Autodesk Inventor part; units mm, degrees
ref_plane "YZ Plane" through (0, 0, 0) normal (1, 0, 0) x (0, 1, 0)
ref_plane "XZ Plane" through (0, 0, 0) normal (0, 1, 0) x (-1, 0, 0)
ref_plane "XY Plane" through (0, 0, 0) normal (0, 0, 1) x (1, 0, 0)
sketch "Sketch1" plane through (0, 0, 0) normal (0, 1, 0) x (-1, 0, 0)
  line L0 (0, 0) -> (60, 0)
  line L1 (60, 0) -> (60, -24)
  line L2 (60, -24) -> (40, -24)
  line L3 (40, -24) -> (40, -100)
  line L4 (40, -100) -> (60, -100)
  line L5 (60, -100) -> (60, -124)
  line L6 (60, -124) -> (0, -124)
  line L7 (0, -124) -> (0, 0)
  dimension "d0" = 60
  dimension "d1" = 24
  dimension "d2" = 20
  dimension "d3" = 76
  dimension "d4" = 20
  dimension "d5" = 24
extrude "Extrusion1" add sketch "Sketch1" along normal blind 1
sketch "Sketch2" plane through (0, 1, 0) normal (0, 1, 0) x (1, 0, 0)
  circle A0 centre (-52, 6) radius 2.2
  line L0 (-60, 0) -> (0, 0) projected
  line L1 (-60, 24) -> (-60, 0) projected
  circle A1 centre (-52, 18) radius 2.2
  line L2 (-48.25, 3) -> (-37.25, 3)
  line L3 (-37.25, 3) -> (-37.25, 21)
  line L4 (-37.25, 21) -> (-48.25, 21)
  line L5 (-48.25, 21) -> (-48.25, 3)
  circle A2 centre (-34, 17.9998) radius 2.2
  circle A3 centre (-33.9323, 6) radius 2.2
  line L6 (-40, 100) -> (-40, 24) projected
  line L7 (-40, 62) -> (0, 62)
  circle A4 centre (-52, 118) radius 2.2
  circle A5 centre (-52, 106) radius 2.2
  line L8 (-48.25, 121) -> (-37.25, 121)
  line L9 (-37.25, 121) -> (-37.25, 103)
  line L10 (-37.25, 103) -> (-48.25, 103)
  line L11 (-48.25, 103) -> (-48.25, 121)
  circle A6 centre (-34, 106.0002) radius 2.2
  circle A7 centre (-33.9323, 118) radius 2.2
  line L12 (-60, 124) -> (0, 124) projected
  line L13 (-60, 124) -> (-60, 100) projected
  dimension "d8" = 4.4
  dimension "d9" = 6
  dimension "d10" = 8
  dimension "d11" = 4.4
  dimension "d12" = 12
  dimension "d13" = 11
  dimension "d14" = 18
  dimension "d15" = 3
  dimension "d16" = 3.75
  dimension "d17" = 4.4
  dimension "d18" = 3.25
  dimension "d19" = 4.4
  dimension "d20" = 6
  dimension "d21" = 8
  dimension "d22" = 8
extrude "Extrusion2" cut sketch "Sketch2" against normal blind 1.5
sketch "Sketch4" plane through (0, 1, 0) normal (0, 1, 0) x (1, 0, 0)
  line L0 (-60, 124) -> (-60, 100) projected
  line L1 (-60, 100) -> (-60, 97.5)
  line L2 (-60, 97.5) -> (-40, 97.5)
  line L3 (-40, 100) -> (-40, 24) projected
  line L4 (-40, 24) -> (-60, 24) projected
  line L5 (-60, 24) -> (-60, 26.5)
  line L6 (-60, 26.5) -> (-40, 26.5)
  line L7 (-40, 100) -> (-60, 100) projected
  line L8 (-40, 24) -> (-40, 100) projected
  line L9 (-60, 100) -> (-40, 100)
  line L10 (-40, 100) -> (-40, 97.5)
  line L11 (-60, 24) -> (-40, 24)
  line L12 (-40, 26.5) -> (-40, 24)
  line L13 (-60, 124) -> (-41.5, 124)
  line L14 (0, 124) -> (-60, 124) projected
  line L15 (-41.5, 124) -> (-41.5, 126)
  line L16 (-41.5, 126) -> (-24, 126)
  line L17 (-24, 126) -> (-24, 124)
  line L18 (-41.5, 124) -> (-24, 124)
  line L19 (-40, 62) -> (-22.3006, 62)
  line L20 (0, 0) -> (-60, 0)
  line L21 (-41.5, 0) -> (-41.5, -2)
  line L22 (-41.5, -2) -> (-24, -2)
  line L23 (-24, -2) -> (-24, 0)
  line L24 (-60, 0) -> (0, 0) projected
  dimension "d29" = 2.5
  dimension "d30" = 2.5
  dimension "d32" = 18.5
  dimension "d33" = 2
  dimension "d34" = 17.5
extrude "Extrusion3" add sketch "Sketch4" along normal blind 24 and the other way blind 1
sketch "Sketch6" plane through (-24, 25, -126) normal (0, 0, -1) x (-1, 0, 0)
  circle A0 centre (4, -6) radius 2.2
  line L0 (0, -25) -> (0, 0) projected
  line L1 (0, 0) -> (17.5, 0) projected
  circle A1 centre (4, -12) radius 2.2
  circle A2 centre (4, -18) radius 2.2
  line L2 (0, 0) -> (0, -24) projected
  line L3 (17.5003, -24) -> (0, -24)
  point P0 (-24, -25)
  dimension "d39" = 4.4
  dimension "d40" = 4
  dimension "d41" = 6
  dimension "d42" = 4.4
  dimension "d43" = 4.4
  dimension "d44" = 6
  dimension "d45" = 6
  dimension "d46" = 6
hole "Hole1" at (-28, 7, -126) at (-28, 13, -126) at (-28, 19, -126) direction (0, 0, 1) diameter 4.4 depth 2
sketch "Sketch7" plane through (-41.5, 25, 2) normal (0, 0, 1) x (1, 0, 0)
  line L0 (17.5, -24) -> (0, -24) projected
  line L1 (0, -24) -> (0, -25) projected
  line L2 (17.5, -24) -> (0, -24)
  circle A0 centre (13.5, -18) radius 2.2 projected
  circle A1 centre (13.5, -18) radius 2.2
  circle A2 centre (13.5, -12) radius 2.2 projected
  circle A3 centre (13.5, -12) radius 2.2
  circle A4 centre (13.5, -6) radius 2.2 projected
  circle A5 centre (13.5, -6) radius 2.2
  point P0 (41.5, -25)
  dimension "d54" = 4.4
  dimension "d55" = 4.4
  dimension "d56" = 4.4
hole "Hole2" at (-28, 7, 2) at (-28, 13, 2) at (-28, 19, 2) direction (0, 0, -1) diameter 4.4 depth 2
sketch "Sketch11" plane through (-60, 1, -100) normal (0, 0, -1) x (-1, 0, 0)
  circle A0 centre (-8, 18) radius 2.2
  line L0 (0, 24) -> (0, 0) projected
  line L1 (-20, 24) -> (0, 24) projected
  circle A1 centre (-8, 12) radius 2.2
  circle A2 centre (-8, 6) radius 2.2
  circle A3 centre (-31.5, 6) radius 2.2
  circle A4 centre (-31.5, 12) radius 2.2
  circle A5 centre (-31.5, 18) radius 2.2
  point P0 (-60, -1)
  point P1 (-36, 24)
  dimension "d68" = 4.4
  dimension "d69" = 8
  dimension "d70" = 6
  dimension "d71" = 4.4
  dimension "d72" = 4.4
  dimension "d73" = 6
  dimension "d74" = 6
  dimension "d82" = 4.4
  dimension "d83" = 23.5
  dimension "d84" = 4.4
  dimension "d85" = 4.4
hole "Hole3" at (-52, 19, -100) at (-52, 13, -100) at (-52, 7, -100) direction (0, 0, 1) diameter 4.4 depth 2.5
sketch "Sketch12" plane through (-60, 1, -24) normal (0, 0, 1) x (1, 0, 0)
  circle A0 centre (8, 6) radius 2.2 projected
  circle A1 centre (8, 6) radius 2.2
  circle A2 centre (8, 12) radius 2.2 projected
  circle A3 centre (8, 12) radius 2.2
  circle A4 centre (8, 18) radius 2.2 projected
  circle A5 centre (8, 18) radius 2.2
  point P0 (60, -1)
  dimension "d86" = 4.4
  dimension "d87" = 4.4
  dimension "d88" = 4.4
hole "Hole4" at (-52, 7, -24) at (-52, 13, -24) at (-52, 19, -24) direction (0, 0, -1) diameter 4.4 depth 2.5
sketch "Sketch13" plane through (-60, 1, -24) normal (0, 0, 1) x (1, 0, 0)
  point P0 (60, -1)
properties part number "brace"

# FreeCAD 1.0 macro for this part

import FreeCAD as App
import Part
import Sketcher
from FreeCAD import Vector
Q = App.Units.Quantity

doc = App.newDocument("Part")
params = doc.addObject("Spreadsheet::Sheet", "Params")
for row, (alias, value) in enumerate([
    ("sketch1_width", "60 mm"),
    ("sketch1_width2", "20 mm"),
    ("sketch1_height", "24 mm"),
    ("sketch1_height2", "76 mm"),
    ("pad1_length", "1 mm"),
    ("sketch2_diameter", "4.4 mm"),
    ("sketch2_width", "11 mm"),
    ("sketch2_height", "18 mm"),
    ("pocket1_length", "1.5 mm"),
    ("sketch3_height", "2 mm"),
    ("sketch3_width", "17.5 mm"),
    ("sketch3_height2", "2.5 mm"),
    ("sketch3_width2", "20 mm"),
    ("pad2_length", "24 mm"),
    ("pad2_length2", "1 mm"),
    ("sketch4_diameter", "4.4 mm"),
    ("hole_diameter", "4.4 mm"),
    ("hole_depth", "2 mm"),
    ("sketch5_diameter", "4.4 mm"),
    ("hole2_diameter", "4.4 mm"),
    ("hole2_depth", "2 mm"),
    ("sketch6_diameter", "4.4 mm"),
    ("hole3_diameter", "4.4 mm"),
    ("hole3_depth", "2.5 mm"),
    ("sketch7_diameter", "4.4 mm"),
    ("hole4_diameter", "4.4 mm"),
    ("hole4_depth", "2.5 mm"),
], start=1):
    params.set(f"A{row}", alias)
    params.set(f"B{row}", "=" + value)
    params.setAlias(f"B{row}", alias)

body = doc.addObject("PartDesign::Body", "Body")

# Sketch on XZ plane
sketch1 = doc.addObject("Sketcher::SketchObject", "Sketch")
body.addObject(sketch1)
sketch1.AttachmentSupport = (doc.XZ_Plane, [""])
sketch1.MapMode = "FlatFace"
sketch1.addGeometry(Part.LineSegment(Vector(-60, 0, 0), Vector(0, 0, 0)), False)
sketch1.addGeometry(Part.LineSegment(Vector(0, 0, 0), Vector(0, -124, 0)), False)
sketch1.addGeometry(Part.LineSegment(Vector(0, -124, 0), Vector(-60, -124, 0)), False)
sketch1.addGeometry(Part.LineSegment(Vector(-60, -124, 0), Vector(-60, -100, 0)), False)
sketch1.addGeometry(Part.LineSegment(Vector(-60, -100, 0), Vector(-40, -100, 0)), False)
sketch1.addGeometry(Part.LineSegment(Vector(-40, -100, 0), Vector(-40, -24, 0)), False)
sketch1.addGeometry(Part.LineSegment(Vector(-40, -24, 0), Vector(-60, -24, 0)), False)
sketch1.addGeometry(Part.LineSegment(Vector(-60, -24, 0), Vector(-60, 0, 0)), False)
sketch1.addConstraint(Sketcher.Constraint("Coincident", 0, 2, 1, 1))
sketch1.addConstraint(Sketcher.Constraint("Coincident", 1, 2, 2, 1))
sketch1.addConstraint(Sketcher.Constraint("Coincident", 2, 2, 3, 1))
sketch1.addConstraint(Sketcher.Constraint("Coincident", 3, 2, 4, 1))
sketch1.addConstraint(Sketcher.Constraint("Coincident", 4, 2, 5, 1))
sketch1.addConstraint(Sketcher.Constraint("Coincident", 5, 2, 6, 1))
sketch1.addConstraint(Sketcher.Constraint("Coincident", 6, 2, 7, 1))
sketch1.addConstraint(Sketcher.Constraint("Coincident", 7, 2, 0, 1))
sketch1.addConstraint(Sketcher.Constraint("Horizontal", 0))
sketch1.addConstraint(Sketcher.Constraint("Vertical", 1))
sketch1.addConstraint(Sketcher.Constraint("Horizontal", 2))
sketch1.addConstraint(Sketcher.Constraint("Vertical", 3))
sketch1.addConstraint(Sketcher.Constraint("Horizontal", 4))
sketch1.addConstraint(Sketcher.Constraint("Vertical", 5))
sketch1.addConstraint(Sketcher.Constraint("Horizontal", 6))
sketch1.addConstraint(Sketcher.Constraint("Vertical", 7))
sketch1.addConstraint(Sketcher.Constraint("Coincident", 0, 2, -1, 1))
sketch1.addConstraint(Sketcher.Constraint("Vertical", 3, 2, 6, 2))
sketch1.addConstraint(Sketcher.Constraint("Equal", 3, 7))
sketch1.addConstraint(Sketcher.Constraint("DistanceX", 0, 1, 0, 2, Q("60 mm")))
sketch1.addConstraint(Sketcher.Constraint("DistanceX", 4, 1, 4, 2, Q("20 mm")))
sketch1.addConstraint(Sketcher.Constraint("DistanceY", 3, 1, 3, 2, Q("24 mm")))
sketch1.addConstraint(Sketcher.Constraint("DistanceY", 5, 1, 5, 2, Q("76 mm")))
sketch1.setExpression("Constraints[19]", "Params.sketch1_width")
sketch1.setExpression("Constraints[20]", "Params.sketch1_width2")
sketch1.setExpression("Constraints[21]", "Params.sketch1_height")
sketch1.setExpression("Constraints[22]", "Params.sketch1_height2")
pad1 = doc.addObject("PartDesign::Pad", "Pad")
body.addObject(pad1)
pad1.Profile = sketch1
pad1.setExpression("Length", "Params.pad1_length")
pad1.Reversed = True

# Sketch on XZ plane
sketch2 = doc.addObject("Sketcher::SketchObject", "Sketch001")
body.addObject(sketch2)
sketch2.AttachmentSupport = (doc.XZ_Plane, [""])
sketch2.MapMode = "FlatFace"
sketch2.AttachmentOffset = App.Placement(Vector(0, 0, -1), App.Rotation())
sketch2.addGeometry(Part.Circle(Vector(-52, -6, 0), Vector(0, 0, 1), 2.2), False)
sketch2.addGeometry(Part.Circle(Vector(-52, -18, 0), Vector(0, 0, 1), 2.2), False)
sketch2.addGeometry(Part.LineSegment(Vector(-48.25, -21, 0), Vector(-48.25, -3, 0)), False)
sketch2.addGeometry(Part.LineSegment(Vector(-48.25, -3, 0), Vector(-37.25, -3, 0)), False)
sketch2.addGeometry(Part.LineSegment(Vector(-37.25, -3, 0), Vector(-37.25, -21, 0)), False)
sketch2.addGeometry(Part.LineSegment(Vector(-37.25, -21, 0), Vector(-48.25, -21, 0)), False)
sketch2.addGeometry(Part.Circle(Vector(-34, -17.9998, 0), Vector(0, 0, 1), 2.2), False)
sketch2.addGeometry(Part.Circle(Vector(-33.9323, -6, 0), Vector(0, 0, 1), 2.2), False)
sketch2.addGeometry(Part.Circle(Vector(-52, -118, 0), Vector(0, 0, 1), 2.2), False)
sketch2.addGeometry(Part.Circle(Vector(-52, -106, 0), Vector(0, 0, 1), 2.2), False)
sketch2.addGeometry(Part.LineSegment(Vector(-37.25, -121, 0), Vector(-48.25, -121, 0)), False)
sketch2.addGeometry(Part.LineSegment(Vector(-48.25, -121, 0), Vector(-48.25, -103, 0)), False)
sketch2.addGeometry(Part.LineSegment(Vector(-48.25, -103, 0), Vector(-37.25, -103, 0)), False)
sketch2.addGeometry(Part.LineSegment(Vector(-37.25, -103, 0), Vector(-37.25, -121, 0)), False)
sketch2.addGeometry(Part.Circle(Vector(-34, -106.0002, 0), Vector(0, 0, 1), 2.2), False)
sketch2.addGeometry(Part.Circle(Vector(-33.9323, -118, 0), Vector(0, 0, 1), 2.2), False)
sketch2.addConstraint(Sketcher.Constraint("Coincident", 2, 2, 3, 1))
sketch2.addConstraint(Sketcher.Constraint("Coincident", 3, 2, 4, 1))
sketch2.addConstraint(Sketcher.Constraint("Coincident", 4, 2, 5, 1))
sketch2.addConstraint(Sketcher.Constraint("Coincident", 5, 2, 2, 1))
sketch2.addConstraint(Sketcher.Constraint("Coincident", 10, 2, 11, 1))
sketch2.addConstraint(Sketcher.Constraint("Coincident", 11, 2, 12, 1))
sketch2.addConstraint(Sketcher.Constraint("Coincident", 12, 2, 13, 1))
sketch2.addConstraint(Sketcher.Constraint("Coincident", 13, 2, 10, 1))
sketch2.addConstraint(Sketcher.Constraint("Vertical", 2))
sketch2.addConstraint(Sketcher.Constraint("Horizontal", 3))
sketch2.addConstraint(Sketcher.Constraint("Vertical", 4))
sketch2.addConstraint(Sketcher.Constraint("Horizontal", 5))
sketch2.addConstraint(Sketcher.Constraint("Horizontal", 10))
sketch2.addConstraint(Sketcher.Constraint("Vertical", 11))
sketch2.addConstraint(Sketcher.Constraint("Horizontal", 12))
sketch2.addConstraint(Sketcher.Constraint("Vertical", 13))
sketch2.addConstraint(Sketcher.Constraint("Equal", 0, 1))
sketch2.addConstraint(Sketcher.Constraint("Equal", 1, 6))
sketch2.addConstraint(Sketcher.Constraint("Equal", 6, 7))
sketch2.addConstraint(Sketcher.Constraint("Equal", 7, 8))
sketch2.addConstraint(Sketcher.Constraint("Equal", 8, 9))
sketch2.addConstraint(Sketcher.Constraint("Equal", 9, 14))
sketch2.addConstraint(Sketcher.Constraint("Equal", 14, 15))
sketch2.addConstraint(Sketcher.Constraint("Horizontal", 1, 3, 6, 3))
sketch2.addConstraint(Sketcher.Constraint("Horizontal", 0, 3, 7, 3))
sketch2.addConstraint(Sketcher.Constraint("Horizontal", 8, 3, 15, 3))
sketch2.addConstraint(Sketcher.Constraint("Vertical", 0, 3, 1, 3))
sketch2.addConstraint(Sketcher.Constraint("Vertical", 1, 3, 8, 3))
sketch2.addConstraint(Sketcher.Constraint("Vertical", 8, 3, 9, 3))
sketch2.addConstraint(Sketcher.Constraint("Vertical", 6, 3, 14, 3))
sketch2.addConstraint(Sketcher.Constraint("Vertical", 7, 3, 15, 3))
sketch2.addConstraint(Sketcher.Constraint("Vertical", 5, 2, 10, 2))
sketch2.addConstraint(Sketcher.Constraint("Vertical", 4, 2, 12, 2))
sketch2.addConstraint(Sketcher.Constraint("Equal", 4, 11))
sketch2.addConstraint(Sketcher.Constraint("Diameter", 0, Q("4.4 mm")))
sketch2.addConstraint(Sketcher.Constraint("DistanceX", 3, 1, 3, 2, Q("11 mm")))
sketch2.addConstraint(Sketcher.Constraint("DistanceY", 2, 1, 2, 2, Q("18 mm")))
sketch2.addConstraint(Sketcher.Constraint("DistanceY", 0, 3, -1, 1, Q("6 mm")))
sketch2.addConstraint(Sketcher.Constraint("DistanceY", 1, 3, -1, 1, Q("18 mm")))
sketch2.addConstraint(Sketcher.Constraint("DistanceY", 2, 2, -1, 1, Q("3 mm")))
sketch2.addConstraint(Sketcher.Constraint("DistanceX", 1, 3, 6, 3, Q("18 mm")))
sketch2.addConstraint(Sketcher.Constraint("DistanceY", 8, 3, 9, 3, Q("12 mm")))
sketch2.addConstraint(Sketcher.Constraint("DistanceY", 10, 2, 8, 3, Q("3 mm")))
sketch2.addConstraint(Sketcher.Constraint("DistanceX", 0, 3, 2, 2, Q("3.75 mm")))
sketch2.addConstraint(Sketcher.Constraint("DistanceX", 0, 3, -1, 1, Q("52 mm")))
sketch2.addConstraint(Sketcher.Constraint("DistanceY", 8, 3, -1, 1, Q("118 mm")))
sketch2.addConstraint(Sketcher.Constraint("DistanceY", 8, 3, 14, 3, Q("11.9998 mm")))
sketch2.addConstraint(Sketcher.Constraint("DistanceX", 7, 3, -1, 1, Q("33.9323 mm")))
sketch2.setExpression("Constraints[34]", "Params.sketch2_diameter")
sketch2.setExpression("Constraints[35]", "Params.sketch2_width")
sketch2.setExpression("Constraints[36]", "Params.sketch2_height")
pocket1 = doc.addObject("PartDesign::Pocket", "Pocket")
body.addObject(pocket1)
pocket1.Profile = sketch2
pocket1.setExpression("Length", "Params.pocket1_length")
pocket1.Reversed = True

# Sketch on XZ plane
sketch3 = doc.addObject("Sketcher::SketchObject", "Sketch002")
body.addObject(sketch3)
sketch3.AttachmentSupport = (doc.XZ_Plane, [""])
sketch3.MapMode = "FlatFace"
sketch3.AttachmentOffset = App.Placement(Vector(0, 0, -1), App.Rotation())
sketch3.addGeometry(Part.LineSegment(Vector(-40, -24, 0), Vector(-40, -26.5, 0)), False)
sketch3.addGeometry(Part.LineSegment(Vector(-40, -26.5, 0), Vector(-60, -26.5, 0)), False)
sketch3.addGeometry(Part.LineSegment(Vector(-60, -26.5, 0), Vector(-60, -24, 0)), False)
sketch3.addGeometry(Part.LineSegment(Vector(-60, -24, 0), Vector(-40, -24, 0)), False)
sketch3.addGeometry(Part.LineSegment(Vector(-40, -100, 0), Vector(-60, -100, 0)), False)
sketch3.addGeometry(Part.LineSegment(Vector(-60, -100, 0), Vector(-60, -97.5, 0)), False)
sketch3.addGeometry(Part.LineSegment(Vector(-60, -97.5, 0), Vector(-40, -97.5, 0)), False)
sketch3.addGeometry(Part.LineSegment(Vector(-40, -97.5, 0), Vector(-40, -100, 0)), False)
sketch3.addGeometry(Part.LineSegment(Vector(-41.5, -126, 0), Vector(-41.5, -124, 0)), False)
sketch3.addGeometry(Part.LineSegment(Vector(-41.5, -124, 0), Vector(-24, -124, 0)), False)
sketch3.addGeometry(Part.LineSegment(Vector(-24, -124, 0), Vector(-24, -126, 0)), False)
sketch3.addGeometry(Part.LineSegment(Vector(-24, -126, 0), Vector(-41.5, -126, 0)), False)
sketch3.addGeometry(Part.LineSegment(Vector(-24, 2, 0), Vector(-24, 0, 0)), False)
sketch3.addGeometry(Part.LineSegment(Vector(-24, 0, 0), Vector(-41.5, 0, 0)), False)
sketch3.addGeometry(Part.LineSegment(Vector(-41.5, 0, 0), Vector(-41.5, 2, 0)), False)
sketch3.addGeometry(Part.LineSegment(Vector(-41.5, 2, 0), Vector(-24, 2, 0)), False)
sketch3.addConstraint(Sketcher.Constraint("Coincident", 0, 2, 1, 1))
sketch3.addConstraint(Sketcher.Constraint("Coincident", 1, 2, 2, 1))
sketch3.addConstraint(Sketcher.Constraint("Coincident", 2, 2, 3, 1))
sketch3.addConstraint(Sketcher.Constraint("Coincident", 3, 2, 0, 1))
sketch3.addConstraint(Sketcher.Constraint("Coincident", 4, 2, 5, 1))
sketch3.addConstraint(Sketcher.Constraint("Coincident", 5, 2, 6, 1))
sketch3.addConstraint(Sketcher.Constraint("Coincident", 6, 2, 7, 1))
sketch3.addConstraint(Sketcher.Constraint("Coincident", 7, 2, 4, 1))
sketch3.addConstraint(Sketcher.Constraint("Coincident", 8, 2, 9, 1))
sketch3.addConstraint(Sketcher.Constraint("Coincident", 9, 2, 10, 1))
sketch3.addConstraint(Sketcher.Constraint("Coincident", 10, 2, 11, 1))
sketch3.addConstraint(Sketcher.Constraint("Coincident", 11, 2, 8, 1))
sketch3.addConstraint(Sketcher.Constraint("Coincident", 12, 2, 13, 1))
sketch3.addConstraint(Sketcher.Constraint("Coincident", 13, 2, 14, 1))
sketch3.addConstraint(Sketcher.Constraint("Coincident", 14, 2, 15, 1))
sketch3.addConstraint(Sketcher.Constraint("Coincident", 15, 2, 12, 1))
sketch3.addConstraint(Sketcher.Constraint("Vertical", 0))
sketch3.addConstraint(Sketcher.Constraint("Horizontal", 1))
sketch3.addConstraint(Sketcher.Constraint("Vertical", 2))
sketch3.addConstraint(Sketcher.Constraint("Horizontal", 3))
sketch3.addConstraint(Sketcher.Constraint("Horizontal", 4))
sketch3.addConstraint(Sketcher.Constraint("Vertical", 5))
sketch3.addConstraint(Sketcher.Constraint("Horizontal", 6))
sketch3.addConstraint(Sketcher.Constraint("Vertical", 7))
sketch3.addConstraint(Sketcher.Constraint("Vertical", 8))
sketch3.addConstraint(Sketcher.Constraint("Horizontal", 9))
sketch3.addConstraint(Sketcher.Constraint("Vertical", 10))
sketch3.addConstraint(Sketcher.Constraint("Horizontal", 11))
sketch3.addConstraint(Sketcher.Constraint("Vertical", 12))
sketch3.addConstraint(Sketcher.Constraint("Horizontal", 13))
sketch3.addConstraint(Sketcher.Constraint("Vertical", 14))
sketch3.addConstraint(Sketcher.Constraint("Horizontal", 15))
sketch3.addConstraint(Sketcher.Constraint("PointOnObject", 12, 2, -1))
sketch3.addConstraint(Sketcher.Constraint("Vertical", 2, 2, 4, 2))
sketch3.addConstraint(Sketcher.Constraint("Vertical", 3, 2, 6, 2))
sketch3.addConstraint(Sketcher.Constraint("Vertical", 10, 2, 12, 2))
sketch3.addConstraint(Sketcher.Constraint("Vertical", 11, 2, 13, 2))
sketch3.addConstraint(Sketcher.Constraint("Equal", 2, 5))
sketch3.addConstraint(Sketcher.Constraint("Equal", 10, 12))
sketch3.addConstraint(Sketcher.Constraint("DistanceY", 8, 1, 8, 2, Q("2 mm")))
sketch3.addConstraint(Sketcher.Constraint("DistanceX", 9, 1, 9, 2, Q("17.5 mm")))
sketch3.addConstraint(Sketcher.Constraint("DistanceY", 0, 2, 0, 1, Q("2.5 mm")))
sketch3.addConstraint(Sketcher.Constraint("DistanceX", 4, 2, 8, 2, Q("18.5 mm")))
sketch3.addConstraint(Sketcher.Constraint("DistanceX", 1, 2, 1, 1, Q("20 mm")))
sketch3.addConstraint(Sketcher.Constraint("DistanceX", 0, 2, -1, 1, Q("40 mm")))
sketch3.addConstraint(Sketcher.Constraint("DistanceY", 2, 2, -1, 1, Q("24 mm")))
sketch3.addConstraint(Sketcher.Constraint("DistanceY", 4, 2, -1, 1, Q("100 mm")))
sketch3.addConstraint(Sketcher.Constraint("DistanceY", 8, 2, -1, 1, Q("124 mm")))
sketch3.setExpression("Constraints[39]", "Params.sketch3_height")
sketch3.setExpression("Constraints[40]", "Params.sketch3_width")
sketch3.setExpression("Constraints[41]", "Params.sketch3_height2")
sketch3.setExpression("Constraints[43]", "Params.sketch3_width2")
pad2 = doc.addObject("PartDesign::Pad", "Pad001")
body.addObject(pad2)
pad2.Profile = sketch3
pad2.Type = "TwoLengths"
pad2.setExpression("Length", "Params.pad2_length")
pad2.setExpression("Length2", "Params.pad2_length2")
pad2.Reversed = True

# Sketch on XY plane
sketch4 = doc.addObject("Sketcher::SketchObject", "Sketch003")
body.addObject(sketch4)
sketch4.AttachmentSupport = (doc.XY_Plane, [""])
sketch4.MapMode = "FlatFace"
sketch4.AttachmentOffset = App.Placement(Vector(0, 0, -126), App.Rotation())
sketch4.addGeometry(Part.Circle(Vector(-28, 7, 0), Vector(0, 0, 1), 2.2), False)
sketch4.addGeometry(Part.Circle(Vector(-28, 13, 0), Vector(0, 0, 1), 2.2), False)
sketch4.addGeometry(Part.Circle(Vector(-28, 19, 0), Vector(0, 0, 1), 2.2), False)
sketch4.addConstraint(Sketcher.Constraint("Equal", 0, 1))
sketch4.addConstraint(Sketcher.Constraint("Equal", 1, 2))
sketch4.addConstraint(Sketcher.Constraint("Vertical", 0, 3, 1, 3))
sketch4.addConstraint(Sketcher.Constraint("Vertical", 1, 3, 2, 3))
sketch4.addConstraint(Sketcher.Constraint("Diameter", 0, Q("4.4 mm")))
sketch4.addConstraint(Sketcher.Constraint("DistanceX", 0, 3, -1, 1, Q("28 mm")))
sketch4.addConstraint(Sketcher.Constraint("DistanceY", -1, 1, 0, 3, Q("7 mm")))
sketch4.addConstraint(Sketcher.Constraint("DistanceY", -1, 1, 1, 3, Q("13 mm")))
sketch4.addConstraint(Sketcher.Constraint("DistanceY", -1, 1, 2, 3, Q("19 mm")))
sketch4.setExpression("Constraints[4]", "Params.sketch4_diameter")
doc.recompute()
hole = doc.addObject("PartDesign::Hole", "Hole")
body.addObject(hole)
hole.Profile = sketch4
hole.ThreadType = "None"
hole.setExpression("Diameter", "Params.hole_diameter")
hole.DepthType = "Dimension"
hole.setExpression("Depth", "Params.hole_depth")
hole.DrillPoint = "Flat"
hole.Reversed = True

# Sketch on XY plane
sketch5 = doc.addObject("Sketcher::SketchObject", "Sketch004")
body.addObject(sketch5)
sketch5.AttachmentSupport = (doc.XY_Plane, [""])
sketch5.MapMode = "FlatFace"
sketch5.AttachmentOffset = App.Placement(Vector(0, 0, 2), App.Rotation())
sketch5.addGeometry(Part.Circle(Vector(-28, 7, 0), Vector(0, 0, 1), 2.2), False)
sketch5.addGeometry(Part.Circle(Vector(-28, 13, 0), Vector(0, 0, 1), 2.2), False)
sketch5.addGeometry(Part.Circle(Vector(-28, 19, 0), Vector(0, 0, 1), 2.2), False)
sketch5.addConstraint(Sketcher.Constraint("Equal", 0, 1))
sketch5.addConstraint(Sketcher.Constraint("Equal", 1, 2))
sketch5.addConstraint(Sketcher.Constraint("Vertical", 0, 3, 1, 3))
sketch5.addConstraint(Sketcher.Constraint("Vertical", 1, 3, 2, 3))
sketch5.addConstraint(Sketcher.Constraint("Diameter", 0, Q("4.4 mm")))
sketch5.addConstraint(Sketcher.Constraint("DistanceX", 0, 3, -1, 1, Q("28 mm")))
sketch5.addConstraint(Sketcher.Constraint("DistanceY", -1, 1, 0, 3, Q("7 mm")))
sketch5.addConstraint(Sketcher.Constraint("DistanceY", -1, 1, 1, 3, Q("13 mm")))
sketch5.addConstraint(Sketcher.Constraint("DistanceY", -1, 1, 2, 3, Q("19 mm")))
sketch5.setExpression("Constraints[4]", "Params.sketch5_diameter")
doc.recompute()
hole2 = doc.addObject("PartDesign::Hole", "Hole001")
body.addObject(hole2)
hole2.Profile = sketch5
hole2.ThreadType = "None"
hole2.setExpression("Diameter", "Params.hole2_diameter")
hole2.DepthType = "Dimension"
hole2.setExpression("Depth", "Params.hole2_depth")
hole2.DrillPoint = "Flat"

# Sketch on XY plane
sketch6 = doc.addObject("Sketcher::SketchObject", "Sketch005")
body.addObject(sketch6)
sketch6.AttachmentSupport = (doc.XY_Plane, [""])
sketch6.MapMode = "FlatFace"
sketch6.AttachmentOffset = App.Placement(Vector(0, 0, -100), App.Rotation())
sketch6.addGeometry(Part.Circle(Vector(-52, 19, 0), Vector(0, 0, 1), 2.2), False)
sketch6.addGeometry(Part.Circle(Vector(-52, 13, 0), Vector(0, 0, 1), 2.2), False)
sketch6.addGeometry(Part.Circle(Vector(-52, 7, 0), Vector(0, 0, 1), 2.2), False)
sketch6.addConstraint(Sketcher.Constraint("Equal", 0, 1))
sketch6.addConstraint(Sketcher.Constraint("Equal", 1, 2))
sketch6.addConstraint(Sketcher.Constraint("Vertical", 0, 3, 1, 3))
sketch6.addConstraint(Sketcher.Constraint("Vertical", 1, 3, 2, 3))
sketch6.addConstraint(Sketcher.Constraint("Diameter", 0, Q("4.4 mm")))
sketch6.addConstraint(Sketcher.Constraint("DistanceX", 0, 3, -1, 1, Q("52 mm")))
sketch6.addConstraint(Sketcher.Constraint("DistanceY", -1, 1, 0, 3, Q("19 mm")))
sketch6.addConstraint(Sketcher.Constraint("DistanceY", -1, 1, 1, 3, Q("13 mm")))
sketch6.addConstraint(Sketcher.Constraint("DistanceY", -1, 1, 2, 3, Q("7 mm")))
sketch6.setExpression("Constraints[4]", "Params.sketch6_diameter")
doc.recompute()
hole3 = doc.addObject("PartDesign::Hole", "Hole002")
body.addObject(hole3)
hole3.Profile = sketch6
hole3.ThreadType = "None"
hole3.setExpression("Diameter", "Params.hole3_diameter")
hole3.DepthType = "Dimension"
hole3.setExpression("Depth", "Params.hole3_depth")
hole3.DrillPoint = "Flat"
hole3.Reversed = True

# Sketch on XY plane
sketch7 = doc.addObject("Sketcher::SketchObject", "Sketch006")
body.addObject(sketch7)
sketch7.AttachmentSupport = (doc.XY_Plane, [""])
sketch7.MapMode = "FlatFace"
sketch7.AttachmentOffset = App.Placement(Vector(0, 0, -24), App.Rotation())
sketch7.addGeometry(Part.Circle(Vector(-52, 7, 0), Vector(0, 0, 1), 2.2), False)
sketch7.addGeometry(Part.Circle(Vector(-52, 13, 0), Vector(0, 0, 1), 2.2), False)
sketch7.addGeometry(Part.Circle(Vector(-52, 19, 0), Vector(0, 0, 1), 2.2), False)
sketch7.addConstraint(Sketcher.Constraint("Equal", 0, 1))
sketch7.addConstraint(Sketcher.Constraint("Equal", 1, 2))
sketch7.addConstraint(Sketcher.Constraint("Vertical", 0, 3, 1, 3))
sketch7.addConstraint(Sketcher.Constraint("Vertical", 1, 3, 2, 3))
sketch7.addConstraint(Sketcher.Constraint("Diameter", 0, Q("4.4 mm")))
sketch7.addConstraint(Sketcher.Constraint("DistanceX", 0, 3, -1, 1, Q("52 mm")))
sketch7.addConstraint(Sketcher.Constraint("DistanceY", -1, 1, 0, 3, Q("7 mm")))
sketch7.addConstraint(Sketcher.Constraint("DistanceY", -1, 1, 1, 3, Q("13 mm")))
sketch7.addConstraint(Sketcher.Constraint("DistanceY", -1, 1, 2, 3, Q("19 mm")))
sketch7.setExpression("Constraints[4]", "Params.sketch7_diameter")
doc.recompute()
hole4 = doc.addObject("PartDesign::Hole", "Hole003")
body.addObject(hole4)
hole4.Profile = sketch7
hole4.ThreadType = "None"
hole4.setExpression("Diameter", "Params.hole4_diameter")
hole4.DepthType = "Dimension"
hole4.setExpression("Depth", "Params.hole4_depth")
hole4.DrillPoint = "Flat"

doc.recompute()
